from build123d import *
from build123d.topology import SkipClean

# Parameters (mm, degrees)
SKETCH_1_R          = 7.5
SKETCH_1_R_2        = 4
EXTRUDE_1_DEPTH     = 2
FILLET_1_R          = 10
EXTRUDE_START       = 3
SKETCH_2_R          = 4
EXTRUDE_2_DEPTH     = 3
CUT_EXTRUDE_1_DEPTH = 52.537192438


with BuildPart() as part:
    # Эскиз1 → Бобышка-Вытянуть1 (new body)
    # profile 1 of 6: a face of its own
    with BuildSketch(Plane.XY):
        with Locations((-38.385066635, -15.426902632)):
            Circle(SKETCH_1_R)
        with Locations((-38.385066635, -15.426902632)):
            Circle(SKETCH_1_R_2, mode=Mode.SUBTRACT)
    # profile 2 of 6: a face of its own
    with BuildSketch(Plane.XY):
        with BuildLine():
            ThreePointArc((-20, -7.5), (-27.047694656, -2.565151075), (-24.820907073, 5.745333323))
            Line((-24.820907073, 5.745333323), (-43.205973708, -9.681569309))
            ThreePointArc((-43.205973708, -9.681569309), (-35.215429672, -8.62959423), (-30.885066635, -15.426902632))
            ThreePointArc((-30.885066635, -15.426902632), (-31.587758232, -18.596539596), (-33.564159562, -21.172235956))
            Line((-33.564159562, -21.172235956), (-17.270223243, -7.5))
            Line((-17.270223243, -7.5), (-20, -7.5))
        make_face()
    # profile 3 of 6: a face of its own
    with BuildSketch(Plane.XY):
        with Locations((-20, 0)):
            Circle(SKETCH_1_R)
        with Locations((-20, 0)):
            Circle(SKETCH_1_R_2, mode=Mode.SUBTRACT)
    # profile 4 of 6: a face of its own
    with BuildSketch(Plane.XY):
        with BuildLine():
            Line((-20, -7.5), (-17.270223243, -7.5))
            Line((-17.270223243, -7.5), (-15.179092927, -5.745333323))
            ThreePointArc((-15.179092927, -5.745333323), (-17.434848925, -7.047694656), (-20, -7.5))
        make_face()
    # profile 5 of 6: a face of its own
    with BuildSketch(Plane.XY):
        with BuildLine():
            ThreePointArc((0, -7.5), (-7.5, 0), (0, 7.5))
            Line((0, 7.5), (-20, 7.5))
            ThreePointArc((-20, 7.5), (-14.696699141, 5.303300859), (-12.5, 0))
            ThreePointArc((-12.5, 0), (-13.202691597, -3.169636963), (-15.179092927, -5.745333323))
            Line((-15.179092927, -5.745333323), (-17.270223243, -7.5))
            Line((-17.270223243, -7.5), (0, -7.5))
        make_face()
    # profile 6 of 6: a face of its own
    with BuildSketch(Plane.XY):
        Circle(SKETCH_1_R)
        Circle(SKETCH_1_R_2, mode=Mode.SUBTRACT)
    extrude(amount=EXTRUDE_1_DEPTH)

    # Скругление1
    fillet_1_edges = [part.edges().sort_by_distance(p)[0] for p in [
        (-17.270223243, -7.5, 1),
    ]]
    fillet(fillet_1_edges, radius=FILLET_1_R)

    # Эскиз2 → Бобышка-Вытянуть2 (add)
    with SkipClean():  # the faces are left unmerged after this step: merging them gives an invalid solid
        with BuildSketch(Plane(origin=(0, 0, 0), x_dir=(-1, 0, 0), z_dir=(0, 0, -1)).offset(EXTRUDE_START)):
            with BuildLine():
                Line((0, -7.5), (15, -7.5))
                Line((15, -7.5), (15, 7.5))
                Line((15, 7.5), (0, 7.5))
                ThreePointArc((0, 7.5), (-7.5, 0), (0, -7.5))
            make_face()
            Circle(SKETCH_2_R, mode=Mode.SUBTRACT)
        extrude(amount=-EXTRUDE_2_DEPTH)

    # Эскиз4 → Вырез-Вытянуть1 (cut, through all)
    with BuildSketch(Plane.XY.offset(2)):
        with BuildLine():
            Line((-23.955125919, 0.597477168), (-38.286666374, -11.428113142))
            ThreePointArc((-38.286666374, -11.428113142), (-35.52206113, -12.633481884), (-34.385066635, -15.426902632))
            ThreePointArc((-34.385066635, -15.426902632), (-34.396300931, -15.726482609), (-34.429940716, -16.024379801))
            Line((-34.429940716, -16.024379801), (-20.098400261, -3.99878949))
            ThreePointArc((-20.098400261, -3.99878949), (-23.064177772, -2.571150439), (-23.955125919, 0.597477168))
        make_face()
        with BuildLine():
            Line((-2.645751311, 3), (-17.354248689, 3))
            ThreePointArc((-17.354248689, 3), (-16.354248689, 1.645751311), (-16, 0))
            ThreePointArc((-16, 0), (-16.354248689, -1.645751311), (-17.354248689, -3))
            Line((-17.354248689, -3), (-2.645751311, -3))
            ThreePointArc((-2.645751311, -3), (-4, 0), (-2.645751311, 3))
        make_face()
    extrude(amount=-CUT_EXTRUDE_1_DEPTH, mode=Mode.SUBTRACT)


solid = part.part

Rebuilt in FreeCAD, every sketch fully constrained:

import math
import FreeCAD as App
import Part
import Sketcher

V = App.Vector
Q = App.Units.Quantity


def edges_at(feature, points):
    """Names of the edges that pass closest to the given points."""
    edges = feature.Shape.Edges
    near = lambda p: min(range(len(edges)), key=lambda i: edges[i].distToShape(Part.Vertex(*p))[0])
    return sorted({f"Edge{near(p) + 1}" for p in points})

doc = App.newDocument("Part")
body = doc.addObject("PartDesign::Body", "Body")

# Sketch on XY plane
sketch1 = doc.addObject("Sketcher::SketchObject", "Sketch")
body.addObject(sketch1)
sketch1.AttachmentSupport = (doc.XY_Plane, [""])
sketch1.MapMode = "FlatFace"
sketch1.addGeometry([
    Part.ArcOfCircle(Part.Circle(V(-38.4, -15.4, 0), V(0, 0, 1), 7.5), math.radians(130), math.radians(310)),  # 0
    Part.LineSegment(V(-33.6, -21.2, 0), V(-17.3, -7.5, 0)),  # 1
    Part.LineSegment(V(-17.3, -7.5, 0), V(0, -7.5, 0)),  # 2
    Part.ArcOfCircle(Part.Circle(V(0, 0, 0), V(0, 0, 1), 7.5), math.radians(-90), math.radians(90)),  # 3
    Part.LineSegment(V(0, 7.5, 0), V(-20, 7.5, 0)),  # 4
    Part.ArcOfCircle(Part.Circle(V(-20, 0, 0), V(0, 0, 1), 7.5), math.radians(90), math.radians(130)),  # 5
    Part.LineSegment(V(-24.8, 5.7, 0), V(-43.2, -9.7, 0)),  # 6
    Part.Circle(V(-38.4, -15.4, 0), V(0, 0, 1), 4),  # 7
    Part.Circle(V(-20, 0, 0), V(0, 0, 1), 4),  # 8
    Part.Circle(V(0, 0, 0), V(0, 0, 1), 4),  # 9
], False)
sketch1.addConstraint([
    Sketcher.Constraint("Tangent", 0, 2, 1, 1),
    Sketcher.Constraint("Coincident", 1, 2, 2, 1),
    Sketcher.Constraint("Tangent", 2, 2, 3, 1),
    Sketcher.Constraint("Tangent", 3, 2, 4, 1),
    Sketcher.Constraint("Tangent", 4, 2, 5, 1),
    Sketcher.Constraint("Tangent", 5, 2, 6, 1),
    Sketcher.Constraint("Tangent", 6, 2, 0, 1),
    Sketcher.Constraint("Horizontal", 2),
    Sketcher.Constraint("Horizontal", 4),
    Sketcher.Constraint("Coincident", 3, 3, -1, 1),
    Sketcher.Constraint("Coincident", 9, 3, -1, 1),
    Sketcher.Constraint("Coincident", 7, 3, 0, 3),
    Sketcher.Constraint("Coincident", 8, 3, 5, 3),
    Sketcher.Constraint("Equal", 0, 3),
    Sketcher.Constraint("Equal", 3, 5),
    Sketcher.Constraint("Equal", 7, 8),
    Sketcher.Constraint("Equal", 8, 9),
    Sketcher.Constraint("Parallel", 1, 6),
    Sketcher.Constraint("Diameter", 7, 8.0),
    Sketcher.Constraint("Radius", 0, 7.5),
    Sketcher.Constraint("DistanceX", 4, 2, 4, 1, 20.0),
    Sketcher.Constraint("Angle", 1, Q("40 deg")),
    Sketcher.Constraint("Distance", 6, 24.0),
])
pad1 = doc.addObject("PartDesign::Pad", "Pad")
body.addObject(pad1)
pad1.Profile = sketch1
pad1.Length = 2
doc.recompute()

fillet = doc.addObject("PartDesign::Fillet", "Fillet")
body.addObject(fillet)
fillet.Base = (pad1, edges_at(pad1, [(-17.27, -7.5, 1)]))
fillet.Radius = 10

# Sketch on XY plane
sketch2 = doc.addObject("Sketcher::SketchObject", "Sketch001")
body.addObject(sketch2)
sketch2.AttachmentSupport = (doc.XY_Plane, [""])
sketch2.MapMode = "FlatFace"
sketch2.AttachmentOffset = App.Placement(V(0, 0, -3), App.Rotation())
sketch2.addGeometry([
    Part.LineSegment(V(0, -7.5, 0), V(-15, -7.5, 0)),  # 0
    Part.LineSegment(V(-15, -7.5, 0), V(-15, 7.5, 0)),  # 1
    Part.LineSegment(V(-15, 7.5, 0), V(0, 7.5, 0)),  # 2
    Part.ArcOfCircle(Part.Circle(V(0, 0, 0), V(0, 0, 1), 7.5), math.radians(-90), math.radians(90)),  # 3
    Part.Circle(V(0, 0, 0), V(0, 0, 1), 4),  # 4
], False)
sketch2.addConstraint([
    Sketcher.Constraint("Coincident", 0, 2, 1, 1),
    Sketcher.Constraint("Coincident", 1, 2, 2, 1),
    Sketcher.Constraint("Tangent", 2, 2, 3, 2),
    Sketcher.Constraint("Tangent", 3, 1, 0, 1),
    Sketcher.Constraint("Horizontal", 0),
    Sketcher.Constraint("Vertical", 1),
    Sketcher.Constraint("Horizontal", 2),
    Sketcher.Constraint("Coincident", 3, 3, -1, 1),
    Sketcher.Constraint("Coincident", 4, 3, -1, 1),
    Sketcher.Constraint("Equal", 2, 1),
    Sketcher.Constraint("Diameter", 4, 8.0),
    Sketcher.Constraint("Radius", 3, 7.5),
])
pad2 = doc.addObject("PartDesign::Pad", "Pad001")
body.addObject(pad2)
pad2.Profile = sketch2
pad2.Length = 3

# Sketch on XY plane
sketch3 = doc.addObject("Sketcher::SketchObject", "Sketch002")
body.addObject(sketch3)
sketch3.AttachmentSupport = (doc.XY_Plane, [""])
sketch3.MapMode = "FlatFace"
sketch3.AttachmentOffset = App.Placement(V(0, 0, 2), App.Rotation())
sketch3.addGeometry([
    Part.LineSegment(V(-24, 0.6, 0), V(-38.3, -11.4, 0)),  # 0
    Part.ArcOfCircle(Part.Circle(V(-38.4, -15.4, 0), V(0, 0, 1), 4), math.radians(0), math.radians(89)),  # 1
    Part.ArcOfCircle(Part.Circle(V(-38.4, -15.4, 0), V(0, 0, 1), 4), math.radians(-8.59), math.radians(0)),  # 2
    Part.LineSegment(V(-34.4, -16, 0), V(-20.1, -4, 0)),  # 3
    Part.ArcOfCircle(Part.Circle(V(-20, 0, 0), V(0, 0, 1), 4), math.radians(171), math.radians(269)),  # 4
    Part.LineSegment(V(-2.6, 3, 0), V(-17.4, 3, 0)),  # 5
    Part.ArcOfCircle(Part.Circle(V(-20, 0, 0), V(0, 0, 1), 4), math.radians(0), math.radians(49)),  # 6
    Part.ArcOfCircle(Part.Circle(V(-20, 0, 0), V(0, 0, 1), 4), math.radians(-49), math.radians(0)),  # 7
    Part.LineSegment(V(-17.4, -3, 0), V(-2.6, -3, 0)),  # 8
    Part.ArcOfCircle(Part.Circle(V(0, 0, 0), V(0, 0, 1), 4), math.radians(131), math.radians(229)),  # 9
], False)
sketch3.addConstraint([
    Sketcher.Constraint("Coincident", 0, 2, 1, 2),
    Sketcher.Constraint("Tangent", 1, 1, 2, 2),
    Sketcher.Constraint("Coincident", 2, 1, 3, 1),
    Sketcher.Constraint("Coincident", 3, 2, 4, 2),
    Sketcher.Constraint("Coincident", 4, 1, 0, 1),
    Sketcher.Constraint("Coincident", 5, 2, 6, 2),
    Sketcher.Constraint("Tangent", 6, 1, 7, 2),
    Sketcher.Constraint("Coincident", 7, 1, 8, 1),
    Sketcher.Constraint("Coincident", 8, 2, 9, 2),
    Sketcher.Constraint("Coincident", 9, 1, 5, 1),
    Sketcher.Constraint("Horizontal", 5),
    Sketcher.Constraint("Horizontal", 8),
    Sketcher.Constraint("Coincident", 9, 3, -1, 1),
    Sketcher.Constraint("Coincident", 6, 3, 4, 3),
    Sketcher.Constraint("Equal", 1, 2),
    Sketcher.Constraint("Equal", 2, 4),
    Sketcher.Constraint("Equal", 4, 6),
    Sketcher.Constraint("Equal", 6, 7),
    Sketcher.Constraint("Equal", 7, 9),
    Sketcher.Constraint("Symmetric", 5, 2, 7, 1, -1),
    Sketcher.Constraint("PointOnObject", 6, 1, -1),
    Sketcher.Constraint("Parallel", 0, 3),
    Sketcher.Constraint("Horizontal", 2, 3, 1, 1),
    Sketcher.Constraint("Equal", 0, 3),
    Sketcher.Constraint("Radius", 1, 4.0),
    Sketcher.Constraint("Angle", 0, Q("-140 deg")),
    Sketcher.Constraint("DistanceX", 4, 3, -1, 1, 20.0),
    Sketcher.Constraint("DistanceY", -1, 1, 5, 2, 3.0),
    Sketcher.Constraint("DistanceX", 3, 2, -1, 1, 20.0984),
    Sketcher.Constraint("DistanceX", 2, 1, -1, 1, 34.429941),
    Sketcher.Constraint("DistanceX", 1, 3, -1, 1, 38.385067),
])
pocket1 = doc.addObject("PartDesign::Pocket", "Pocket")
body.addObject(pocket1)
pocket1.Profile = sketch3
pocket1.Type = "ThroughAll"

doc.recompute()
